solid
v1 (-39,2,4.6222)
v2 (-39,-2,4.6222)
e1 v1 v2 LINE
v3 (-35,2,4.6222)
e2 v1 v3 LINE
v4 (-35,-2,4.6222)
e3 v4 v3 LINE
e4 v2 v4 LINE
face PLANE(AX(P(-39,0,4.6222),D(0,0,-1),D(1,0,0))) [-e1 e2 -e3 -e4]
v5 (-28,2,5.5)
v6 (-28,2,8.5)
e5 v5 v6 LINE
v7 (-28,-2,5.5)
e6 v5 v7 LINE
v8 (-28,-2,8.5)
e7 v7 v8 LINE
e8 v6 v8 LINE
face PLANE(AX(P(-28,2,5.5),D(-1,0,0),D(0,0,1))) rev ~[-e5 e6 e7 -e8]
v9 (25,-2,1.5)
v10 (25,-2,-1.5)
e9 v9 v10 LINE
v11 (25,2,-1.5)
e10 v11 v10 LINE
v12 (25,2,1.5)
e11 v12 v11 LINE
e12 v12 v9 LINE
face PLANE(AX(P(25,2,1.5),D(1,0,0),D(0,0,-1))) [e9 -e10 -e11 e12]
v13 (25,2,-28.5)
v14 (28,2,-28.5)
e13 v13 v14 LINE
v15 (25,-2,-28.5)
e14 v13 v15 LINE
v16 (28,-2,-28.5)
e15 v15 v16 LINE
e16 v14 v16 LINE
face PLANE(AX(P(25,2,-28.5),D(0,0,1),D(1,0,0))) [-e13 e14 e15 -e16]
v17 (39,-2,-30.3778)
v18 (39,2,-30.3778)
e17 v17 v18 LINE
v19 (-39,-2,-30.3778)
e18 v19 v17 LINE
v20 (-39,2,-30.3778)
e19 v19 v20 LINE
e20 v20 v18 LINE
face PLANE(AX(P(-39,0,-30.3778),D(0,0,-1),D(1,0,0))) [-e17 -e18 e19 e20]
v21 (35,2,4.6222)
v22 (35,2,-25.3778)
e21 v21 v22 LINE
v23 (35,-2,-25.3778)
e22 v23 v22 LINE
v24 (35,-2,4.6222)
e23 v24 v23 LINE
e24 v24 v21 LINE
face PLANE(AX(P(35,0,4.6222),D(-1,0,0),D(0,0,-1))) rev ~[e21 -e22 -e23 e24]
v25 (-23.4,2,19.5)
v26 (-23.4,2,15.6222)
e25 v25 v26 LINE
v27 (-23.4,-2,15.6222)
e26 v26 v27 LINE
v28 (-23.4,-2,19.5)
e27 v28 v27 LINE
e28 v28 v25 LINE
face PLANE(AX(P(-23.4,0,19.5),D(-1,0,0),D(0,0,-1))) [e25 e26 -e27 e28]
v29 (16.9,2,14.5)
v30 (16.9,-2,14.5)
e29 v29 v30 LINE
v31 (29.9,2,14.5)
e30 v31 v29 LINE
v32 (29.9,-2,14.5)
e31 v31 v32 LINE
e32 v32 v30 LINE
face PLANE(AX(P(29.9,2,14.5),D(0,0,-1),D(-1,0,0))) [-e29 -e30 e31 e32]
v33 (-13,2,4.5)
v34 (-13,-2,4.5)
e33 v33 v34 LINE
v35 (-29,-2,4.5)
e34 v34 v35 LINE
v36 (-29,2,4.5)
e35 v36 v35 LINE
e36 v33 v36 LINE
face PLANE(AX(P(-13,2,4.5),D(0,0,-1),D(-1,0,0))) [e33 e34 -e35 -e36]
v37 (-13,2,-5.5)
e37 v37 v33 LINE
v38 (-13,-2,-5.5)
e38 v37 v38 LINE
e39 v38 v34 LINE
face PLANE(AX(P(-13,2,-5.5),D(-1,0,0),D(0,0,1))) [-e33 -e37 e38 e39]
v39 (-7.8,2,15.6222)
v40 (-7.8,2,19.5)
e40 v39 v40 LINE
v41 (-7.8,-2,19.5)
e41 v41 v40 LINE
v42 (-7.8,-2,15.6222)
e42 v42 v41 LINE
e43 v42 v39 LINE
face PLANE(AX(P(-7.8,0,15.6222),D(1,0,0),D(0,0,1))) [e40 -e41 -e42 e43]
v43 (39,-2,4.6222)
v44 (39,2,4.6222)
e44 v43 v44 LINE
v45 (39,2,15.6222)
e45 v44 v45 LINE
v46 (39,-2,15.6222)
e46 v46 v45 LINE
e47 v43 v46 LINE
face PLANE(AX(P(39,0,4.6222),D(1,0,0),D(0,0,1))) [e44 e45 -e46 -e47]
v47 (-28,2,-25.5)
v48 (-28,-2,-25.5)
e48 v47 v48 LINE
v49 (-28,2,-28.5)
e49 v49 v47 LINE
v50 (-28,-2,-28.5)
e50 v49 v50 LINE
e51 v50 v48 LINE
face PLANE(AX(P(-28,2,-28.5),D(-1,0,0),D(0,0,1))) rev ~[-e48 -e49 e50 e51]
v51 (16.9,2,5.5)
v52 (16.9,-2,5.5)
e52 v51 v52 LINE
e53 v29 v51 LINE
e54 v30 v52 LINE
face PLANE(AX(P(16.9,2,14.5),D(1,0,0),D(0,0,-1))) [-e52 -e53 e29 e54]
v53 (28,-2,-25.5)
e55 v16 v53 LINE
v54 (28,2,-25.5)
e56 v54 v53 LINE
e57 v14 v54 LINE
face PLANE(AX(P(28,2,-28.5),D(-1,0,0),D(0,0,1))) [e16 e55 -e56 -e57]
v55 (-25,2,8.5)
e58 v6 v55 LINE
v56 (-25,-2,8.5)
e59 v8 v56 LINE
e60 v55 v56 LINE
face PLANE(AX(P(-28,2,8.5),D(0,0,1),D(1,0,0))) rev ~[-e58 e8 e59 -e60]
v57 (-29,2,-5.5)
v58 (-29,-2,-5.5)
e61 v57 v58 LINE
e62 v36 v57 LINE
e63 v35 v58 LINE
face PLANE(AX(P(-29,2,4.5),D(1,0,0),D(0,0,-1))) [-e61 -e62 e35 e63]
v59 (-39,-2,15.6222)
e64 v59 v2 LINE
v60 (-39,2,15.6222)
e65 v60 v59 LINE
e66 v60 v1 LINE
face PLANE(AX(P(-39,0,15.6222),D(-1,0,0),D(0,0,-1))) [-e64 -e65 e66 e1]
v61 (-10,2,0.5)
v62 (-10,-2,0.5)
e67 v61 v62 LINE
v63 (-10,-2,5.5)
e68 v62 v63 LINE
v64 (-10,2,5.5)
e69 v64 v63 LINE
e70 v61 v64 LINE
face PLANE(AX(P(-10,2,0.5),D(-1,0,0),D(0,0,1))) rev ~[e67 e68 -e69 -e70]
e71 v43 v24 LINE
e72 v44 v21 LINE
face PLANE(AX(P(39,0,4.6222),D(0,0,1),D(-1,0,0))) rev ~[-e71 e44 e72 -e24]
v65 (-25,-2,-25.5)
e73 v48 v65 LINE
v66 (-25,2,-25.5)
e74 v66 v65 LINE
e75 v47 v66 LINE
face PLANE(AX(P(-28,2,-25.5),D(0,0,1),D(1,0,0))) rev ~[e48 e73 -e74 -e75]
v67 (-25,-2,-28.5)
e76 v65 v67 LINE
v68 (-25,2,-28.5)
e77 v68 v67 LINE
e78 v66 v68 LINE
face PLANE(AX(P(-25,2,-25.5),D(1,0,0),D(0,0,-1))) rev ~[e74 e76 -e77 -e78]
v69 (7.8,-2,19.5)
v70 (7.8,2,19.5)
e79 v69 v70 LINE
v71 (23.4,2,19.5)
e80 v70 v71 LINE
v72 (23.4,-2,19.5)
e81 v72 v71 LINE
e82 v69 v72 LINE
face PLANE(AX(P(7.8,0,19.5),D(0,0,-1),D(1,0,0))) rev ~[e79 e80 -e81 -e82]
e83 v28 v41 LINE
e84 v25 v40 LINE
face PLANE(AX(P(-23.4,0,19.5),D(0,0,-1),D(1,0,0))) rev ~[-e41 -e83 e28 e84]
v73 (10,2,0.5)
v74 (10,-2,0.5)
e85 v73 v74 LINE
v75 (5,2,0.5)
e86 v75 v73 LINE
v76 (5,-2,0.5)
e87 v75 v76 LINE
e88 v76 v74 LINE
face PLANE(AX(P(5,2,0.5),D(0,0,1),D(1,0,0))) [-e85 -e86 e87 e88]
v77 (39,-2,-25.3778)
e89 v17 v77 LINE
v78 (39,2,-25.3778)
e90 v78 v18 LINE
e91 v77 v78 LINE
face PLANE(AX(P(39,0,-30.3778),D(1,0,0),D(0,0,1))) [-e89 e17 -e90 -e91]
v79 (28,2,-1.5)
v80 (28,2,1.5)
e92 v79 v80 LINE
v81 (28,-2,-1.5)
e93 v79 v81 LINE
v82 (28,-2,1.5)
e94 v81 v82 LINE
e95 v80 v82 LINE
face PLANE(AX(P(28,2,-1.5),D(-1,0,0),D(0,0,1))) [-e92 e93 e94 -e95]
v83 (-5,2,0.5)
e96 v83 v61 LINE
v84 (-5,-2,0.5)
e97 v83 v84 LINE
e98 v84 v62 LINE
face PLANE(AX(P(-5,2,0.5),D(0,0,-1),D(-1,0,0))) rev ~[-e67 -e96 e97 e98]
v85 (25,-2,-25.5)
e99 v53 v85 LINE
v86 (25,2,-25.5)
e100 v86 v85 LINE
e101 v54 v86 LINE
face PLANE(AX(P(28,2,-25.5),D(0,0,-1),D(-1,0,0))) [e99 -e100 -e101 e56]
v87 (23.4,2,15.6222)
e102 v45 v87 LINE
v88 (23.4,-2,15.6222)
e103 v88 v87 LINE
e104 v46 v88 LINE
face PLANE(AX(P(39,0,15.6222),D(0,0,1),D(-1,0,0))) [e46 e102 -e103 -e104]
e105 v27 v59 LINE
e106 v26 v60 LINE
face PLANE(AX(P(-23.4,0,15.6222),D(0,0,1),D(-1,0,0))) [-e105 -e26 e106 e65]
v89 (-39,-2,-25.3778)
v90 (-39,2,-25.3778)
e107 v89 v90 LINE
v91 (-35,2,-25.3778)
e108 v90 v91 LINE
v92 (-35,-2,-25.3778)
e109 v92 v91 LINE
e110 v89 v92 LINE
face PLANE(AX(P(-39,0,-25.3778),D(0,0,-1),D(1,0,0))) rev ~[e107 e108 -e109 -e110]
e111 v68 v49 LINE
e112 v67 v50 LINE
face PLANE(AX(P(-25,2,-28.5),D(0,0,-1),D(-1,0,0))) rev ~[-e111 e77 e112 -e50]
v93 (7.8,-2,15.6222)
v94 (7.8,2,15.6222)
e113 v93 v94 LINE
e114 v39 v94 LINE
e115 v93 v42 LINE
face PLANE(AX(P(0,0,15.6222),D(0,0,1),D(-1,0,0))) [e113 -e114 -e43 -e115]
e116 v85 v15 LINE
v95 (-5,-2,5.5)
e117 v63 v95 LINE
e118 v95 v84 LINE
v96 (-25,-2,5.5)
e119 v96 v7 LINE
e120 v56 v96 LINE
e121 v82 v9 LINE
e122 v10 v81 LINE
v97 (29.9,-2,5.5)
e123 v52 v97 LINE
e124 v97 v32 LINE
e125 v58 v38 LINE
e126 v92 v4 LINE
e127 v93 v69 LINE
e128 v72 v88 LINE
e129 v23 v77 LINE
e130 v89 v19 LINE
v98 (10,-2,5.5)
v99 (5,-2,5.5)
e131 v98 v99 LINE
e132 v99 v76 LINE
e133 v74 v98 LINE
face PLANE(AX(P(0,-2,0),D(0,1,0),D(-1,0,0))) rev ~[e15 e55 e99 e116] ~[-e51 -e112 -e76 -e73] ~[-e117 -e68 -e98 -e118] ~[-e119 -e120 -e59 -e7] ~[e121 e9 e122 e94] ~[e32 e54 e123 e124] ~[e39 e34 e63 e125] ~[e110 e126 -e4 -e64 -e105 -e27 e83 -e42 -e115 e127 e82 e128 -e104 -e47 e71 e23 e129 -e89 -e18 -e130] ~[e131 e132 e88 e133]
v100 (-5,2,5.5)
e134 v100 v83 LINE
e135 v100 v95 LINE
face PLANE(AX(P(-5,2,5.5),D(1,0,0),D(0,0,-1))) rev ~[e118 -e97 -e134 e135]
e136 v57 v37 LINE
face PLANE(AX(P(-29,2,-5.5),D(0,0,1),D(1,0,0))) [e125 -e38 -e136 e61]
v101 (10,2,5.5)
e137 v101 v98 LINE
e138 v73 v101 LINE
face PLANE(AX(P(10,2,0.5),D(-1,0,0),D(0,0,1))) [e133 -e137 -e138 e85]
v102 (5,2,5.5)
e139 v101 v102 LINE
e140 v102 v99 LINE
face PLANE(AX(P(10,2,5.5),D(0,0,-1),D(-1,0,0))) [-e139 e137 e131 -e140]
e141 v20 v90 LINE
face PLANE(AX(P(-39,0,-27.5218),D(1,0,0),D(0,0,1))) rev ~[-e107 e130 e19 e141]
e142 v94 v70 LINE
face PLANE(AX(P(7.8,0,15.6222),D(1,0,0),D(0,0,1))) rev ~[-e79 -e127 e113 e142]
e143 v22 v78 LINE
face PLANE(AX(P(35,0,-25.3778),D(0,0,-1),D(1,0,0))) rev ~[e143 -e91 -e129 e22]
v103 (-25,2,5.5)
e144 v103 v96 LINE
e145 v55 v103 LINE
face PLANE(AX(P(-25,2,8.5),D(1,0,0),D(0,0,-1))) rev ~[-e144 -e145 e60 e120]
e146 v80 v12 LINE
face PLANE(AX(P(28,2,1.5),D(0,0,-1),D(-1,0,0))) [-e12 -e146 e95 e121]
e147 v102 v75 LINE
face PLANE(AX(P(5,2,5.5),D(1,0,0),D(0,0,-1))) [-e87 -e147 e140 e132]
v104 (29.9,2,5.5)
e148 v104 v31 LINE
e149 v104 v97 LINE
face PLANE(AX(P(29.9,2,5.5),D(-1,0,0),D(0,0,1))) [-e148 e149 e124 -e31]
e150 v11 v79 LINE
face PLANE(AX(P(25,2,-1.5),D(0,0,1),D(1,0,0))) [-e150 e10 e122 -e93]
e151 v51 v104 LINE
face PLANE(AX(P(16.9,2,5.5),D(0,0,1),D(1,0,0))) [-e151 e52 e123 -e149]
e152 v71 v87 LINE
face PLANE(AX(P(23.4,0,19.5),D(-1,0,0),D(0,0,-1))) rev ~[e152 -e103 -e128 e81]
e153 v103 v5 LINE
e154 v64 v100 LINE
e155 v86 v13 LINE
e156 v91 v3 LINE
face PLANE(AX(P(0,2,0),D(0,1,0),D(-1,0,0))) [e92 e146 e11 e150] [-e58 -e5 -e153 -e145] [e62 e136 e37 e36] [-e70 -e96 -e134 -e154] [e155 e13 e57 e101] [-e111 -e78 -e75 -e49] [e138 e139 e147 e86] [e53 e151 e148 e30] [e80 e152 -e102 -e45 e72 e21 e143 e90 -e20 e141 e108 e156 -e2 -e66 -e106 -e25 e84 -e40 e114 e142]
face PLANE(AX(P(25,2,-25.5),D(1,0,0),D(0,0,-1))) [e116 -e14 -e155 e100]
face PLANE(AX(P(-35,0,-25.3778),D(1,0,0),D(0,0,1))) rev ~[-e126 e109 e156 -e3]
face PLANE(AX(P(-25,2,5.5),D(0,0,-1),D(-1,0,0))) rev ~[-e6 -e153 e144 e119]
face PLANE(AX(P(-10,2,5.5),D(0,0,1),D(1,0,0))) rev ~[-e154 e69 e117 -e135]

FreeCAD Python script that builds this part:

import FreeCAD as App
import Part
import Sketcher

V = App.Vector

doc = App.newDocument("Part")
body = doc.addObject("PartDesign::Body", "Body")

# Sketch on XZ plane
sketch1 = body.newObject("Sketcher::SketchObject", "Sketch")
sketch1.AttachmentSupport = (doc.getObject("XZ_Plane"), [""])
sketch1.MapMode = "FlatFace"
sketch1.addGeometry([
    Part.LineSegment(V(-23.4, 15.6, 0), V(-23.4, 19.5, 0)),  # 0
    Part.LineSegment(V(-23.4, 19.5, 0), V(-7.8, 19.5, 0)),  # 1
    Part.LineSegment(V(-7.8, 19.5, 0), V(-7.8, 15.6, 0)),  # 2
    Part.LineSegment(V(-7.8, 15.6, 0), V(7.8, 15.6, 0)),  # 3
    Part.LineSegment(V(7.8, 15.6, 0), V(7.8, 19.5, 0)),  # 4
    Part.LineSegment(V(7.8, 19.5, 0), V(23.4, 19.5, 0)),  # 5
    Part.LineSegment(V(23.4, 19.5, 0), V(23.4, 15.6, 0)),  # 6
    Part.LineSegment(V(23.4, 15.6, 0), V(39, 15.6, 0)),  # 7
    Part.LineSegment(V(39, 15.6, 0), V(39, 4.6, 0)),  # 8
    Part.LineSegment(V(39, 4.6, 0), V(35, 4.6, 0)),  # 9
    Part.LineSegment(V(35, 4.6, 0), V(35, -25.4, 0)),  # 10
    Part.LineSegment(V(35, -25.4, 0), V(39, -25.4, 0)),  # 11
    Part.LineSegment(V(39, -25.4, 0), V(39, -30.4, 0)),  # 12
    Part.LineSegment(V(39, -30.4, 0), V(-39, -30.4, 0)),  # 13
    Part.LineSegment(V(-39, -30.4, 0), V(-39, -25.4, 0)),  # 14
    Part.LineSegment(V(-39, -25.4, 0), V(-35, -25.4, 0)),  # 15
    Part.LineSegment(V(-35, -25.4, 0), V(-35, 4.6, 0)),  # 16
    Part.LineSegment(V(-35, 4.6, 0), V(-39, 4.6, 0)),  # 17
    Part.LineSegment(V(-39, 4.6, 0), V(-39, 15.6, 0)),  # 18
    Part.LineSegment(V(-39, 15.6, 0), V(-23.4, 15.6, 0)),  # 19
], False)
sketch1.addConstraint([
    Sketcher.Constraint("Coincident", 0, 2, 1, 1),
    Sketcher.Constraint("Coincident", 1, 2, 2, 1),
    Sketcher.Constraint("Coincident", 2, 2, 3, 1),
    Sketcher.Constraint("Coincident", 3, 2, 4, 1),
    Sketcher.Constraint("Coincident", 4, 2, 5, 1),
    Sketcher.Constraint("Coincident", 5, 2, 6, 1),
    Sketcher.Constraint("Coincident", 6, 2, 7, 1),
    Sketcher.Constraint("Coincident", 7, 2, 8, 1),
    Sketcher.Constraint("Coincident", 8, 2, 9, 1),
    Sketcher.Constraint("Coincident", 9, 2, 10, 1),
    Sketcher.Constraint("Coincident", 10, 2, 11, 1),
    Sketcher.Constraint("Coincident", 11, 2, 12, 1),
    Sketcher.Constraint("Coincident", 12, 2, 13, 1),
    Sketcher.Constraint("Coincident", 13, 2, 14, 1),
    Sketcher.Constraint("Coincident", 14, 2, 15, 1),
    Sketcher.Constraint("Coincident", 15, 2, 16, 1),
    Sketcher.Constraint("Coincident", 16, 2, 17, 1),
    Sketcher.Constraint("Coincident", 17, 2, 18, 1),
    Sketcher.Constraint("Coincident", 18, 2, 19, 1),
    Sketcher.Constraint("Coincident", 19, 2, 0, 1),
    Sketcher.Constraint("Vertical", 0),
    Sketcher.Constraint("Horizontal", 1),
    Sketcher.Constraint("Vertical", 2),
    Sketcher.Constraint("Horizontal", 3),
    Sketcher.Constraint("Vertical", 4),
    Sketcher.Constraint("Horizontal", 5),
    Sketcher.Constraint("Vertical", 6),
    Sketcher.Constraint("Horizontal", 7),
    Sketcher.Constraint("Vertical", 8),
    Sketcher.Constraint("Horizontal", 9),
    Sketcher.Constraint("Vertical", 10),
    Sketcher.Constraint("Horizontal", 11),
    Sketcher.Constraint("Vertical", 12),
    Sketcher.Constraint("Horizontal", 13),
    Sketcher.Constraint("Vertical", 14),
    Sketcher.Constraint("Horizontal", 15),
    Sketcher.Constraint("Vertical", 16),
    Sketcher.Constraint("Horizontal", 17),
    Sketcher.Constraint("Vertical", 18),
    Sketcher.Constraint("Horizontal", 19),
    Sketcher.Constraint("Symmetric", 1, 2, 4, 2, -2),
    Sketcher.Constraint("Symmetric", 11, 2, 14, 2, -2),
    Sketcher.Constraint("Symmetric", 9, 2, 16, 2, -2),
    Sketcher.Constraint("Symmetric", 7, 2, 18, 2, -2),
    Sketcher.Constraint("Horizontal", 3, 2, 6, 2),
    Sketcher.Constraint("Vertical", 8, 2, 11, 2),
    Sketcher.Constraint("Equal", 1, 3),
    Sketcher.Constraint("Equal", 3, 5),
    Sketcher.Constraint("Equal", 5, 7),
    Sketcher.Constraint("DistanceX", 9, 2, 9, 1, 4.0),
    Sketcher.Constraint("DistanceX", 13, 2, 13, 1, 78.0),
    Sketcher.Constraint("DistanceY", 8, 2, 8, 1, 11.0),
    Sketcher.Constraint("DistanceY", 10, 2, 10, 1, 30.0),
    Sketcher.Constraint("DistanceY", 12, 2, 12, 1, 5.0),
    Sketcher.Constraint("DistanceY", -1, 1, 0, 2, 19.5),
    Sketcher.Constraint("DistanceY", 0, 1, 0, 2, 3.8778),
])
pad1 = body.newObject("PartDesign::Pad", "Pad")
pad1.Profile = sketch1
pad1.Length = 4
pad1.Midplane = True

# Sketch on XZ plane
sketch2 = body.newObject("Sketcher::SketchObject", "Sketch001")
sketch2.AttachmentSupport = (doc.getObject("XZ_Plane"), [""])
sketch2.MapMode = "FlatFace"
sketch2.AttachmentOffset = App.Placement(V(0, 0, -2), App.Rotation())
sketch2.addGeometry([
    Part.LineSegment(V(5, 5.5, 0), V(10, 5.5, 0)),  # 0
    Part.LineSegment(V(10, 5.5, 0), V(10, 0.5, 0)),  # 1
    Part.LineSegment(V(10, 0.5, 0), V(5, 0.5, 0)),  # 2
    Part.LineSegment(V(5, 0.5, 0), V(5, 5.5, 0)),  # 3
    Part.LineSegment(V(-10, 0.5, 0), V(-10, 5.5, 0)),  # 4
    Part.LineSegment(V(-10, 5.5, 0), V(-5, 5.5, 0)),  # 5
    Part.LineSegment(V(-5, 5.5, 0), V(-5, 0.5, 0)),  # 6
    Part.LineSegment(V(-5, 0.5, 0), V(-10, 0.5, 0)),  # 7
    Part.LineSegment(V(-29, 4.5, 0), V(-13, 4.5, 0)),  # 8
    Part.LineSegment(V(-13, 4.5, 0), V(-13, -5.5, 0)),  # 9
    Part.LineSegment(V(-13, -5.5, 0), V(-29, -5.5, 0)),  # 10
    Part.LineSegment(V(-29, -5.5, 0), V(-29, 4.5, 0)),  # 11
    Part.LineSegment(V(-28, 8.5, 0), V(-25, 8.5, 0)),  # 12
    Part.LineSegment(V(-25, 8.5, 0), V(-25, 5.5, 0)),  # 13
    Part.LineSegment(V(-25, 5.5, 0), V(-28, 5.5, 0)),  # 14
    Part.LineSegment(V(-28, 5.5, 0), V(-28, 8.5, 0)),  # 15
    Part.LineSegment(V(25, -25.5, 0), V(28, -25.5, 0)),  # 16
    Part.LineSegment(V(28, -25.5, 0), V(28, -28.5, 0)),  # 17
    Part.LineSegment(V(28, -28.5, 0), V(25, -28.5, 0)),  # 18
    Part.LineSegment(V(25, -28.5, 0), V(25, -25.5, 0)),  # 19
    Part.LineSegment(V(-28, -28.5, 0), V(-28, -25.5, 0)),  # 20
    Part.LineSegment(V(-28, -25.5, 0), V(-25, -25.5, 0)),  # 21
    Part.LineSegment(V(-25, -25.5, 0), V(-25, -28.5, 0)),  # 22
    Part.LineSegment(V(-25, -28.5, 0), V(-28, -28.5, 0)),  # 23
    Part.LineSegment(V(16.9, 14.5, 0), V(29.9, 14.5, 0)),  # 24
    Part.LineSegment(V(29.9, 14.5, 0), V(29.9, 5.5, 0)),  # 25
    Part.LineSegment(V(29.9, 5.5, 0), V(16.9, 5.5, 0)),  # 26
    Part.LineSegment(V(16.9, 5.5, 0), V(16.9, 14.5, 0)),  # 27
    Part.LineSegment(V(25, 1.5, 0), V(28, 1.5, 0)),  # 28
    Part.LineSegment(V(28, 1.5, 0), V(28, -1.5, 0)),  # 29
    Part.LineSegment(V(28, -1.5, 0), V(25, -1.5, 0)),  # 30
    Part.LineSegment(V(25, -1.5, 0), V(25, 1.5, 0)),  # 31
], False)
sketch2.addConstraint([
    Sketcher.Constraint("Coincident", 0, 2, 1, 1),
    Sketcher.Constraint("Coincident", 1, 2, 2, 1),
    Sketcher.Constraint("Coincident", 2, 2, 3, 1),
    Sketcher.Constraint("Coincident", 3, 2, 0, 1),
    Sketcher.Constraint("Coincident", 4, 2, 5, 1),
    Sketcher.Constraint("Coincident", 5, 2, 6, 1),
    Sketcher.Constraint("Coincident", 6, 2, 7, 1),
    Sketcher.Constraint("Coincident", 7, 2, 4, 1),
    Sketcher.Constraint("Coincident", 8, 2, 9, 1),
    Sketcher.Constraint("Coincident", 9, 2, 10, 1),
    Sketcher.Constraint("Coincident", 10, 2, 11, 1),
    Sketcher.Constraint("Coincident", 11, 2, 8, 1),
    Sketcher.Constraint("Coincident", 12, 2, 13, 1),
    Sketcher.Constraint("Coincident", 13, 2, 14, 1),
    Sketcher.Constraint("Coincident", 14, 2, 15, 1),
    Sketcher.Constraint("Coincident", 15, 2, 12, 1),
    Sketcher.Constraint("Coincident", 16, 2, 17, 1),
    Sketcher.Constraint("Coincident", 17, 2, 18, 1),
    Sketcher.Constraint("Coincident", 18, 2, 19, 1),
    Sketcher.Constraint("Coincident", 19, 2, 16, 1),
    Sketcher.Constraint("Coincident", 20, 2, 21, 1),
    Sketcher.Constraint("Coincident", 21, 2, 22, 1),
    Sketcher.Constraint("Coincident", 22, 2, 23, 1),
    Sketcher.Constraint("Coincident", 23, 2, 20, 1),
    Sketcher.Constraint("Coincident", 24, 2, 25, 1),
    Sketcher.Constraint("Coincident", 25, 2, 26, 1),
    Sketcher.Constraint("Coincident", 26, 2, 27, 1),
    Sketcher.Constraint("Coincident", 27, 2, 24, 1),
    Sketcher.Constraint("Coincident", 28, 2, 29, 1),
    Sketcher.Constraint("Coincident", 29, 2, 30, 1),
    Sketcher.Constraint("Coincident", 30, 2, 31, 1),
    Sketcher.Constraint("Coincident", 31, 2, 28, 1),
    Sketcher.Constraint("Horizontal", 0),
    Sketcher.Constraint("Vertical", 1),
    Sketcher.Constraint("Horizontal", 2),
    Sketcher.Constraint("Vertical", 3),
    Sketcher.Constraint("Vertical", 4),
    Sketcher.Constraint("Horizontal", 5),
    Sketcher.Constraint("Vertical", 6),
    Sketcher.Constraint("Horizontal", 7),
    Sketcher.Constraint("Horizontal", 8),
    Sketcher.Constraint("Vertical", 9),
    Sketcher.Constraint("Horizontal", 10),
    Sketcher.Constraint("Vertical", 11),
    Sketcher.Constraint("Horizontal", 12),
    Sketcher.Constraint("Vertical", 13),
    Sketcher.Constraint("Horizontal", 14),
    Sketcher.Constraint("Vertical", 15),
    Sketcher.Constraint("Horizontal", 16),
    Sketcher.Constraint("Vertical", 17),
    Sketcher.Constraint("Horizontal", 18),
    Sketcher.Constraint("Vertical", 19),
    Sketcher.Constraint("Vertical", 20),
    Sketcher.Constraint("Horizontal", 21),
    Sketcher.Constraint("Vertical", 22),
    Sketcher.Constraint("Horizontal", 23),
    Sketcher.Constraint("Horizontal", 24),
    Sketcher.Constraint("Vertical", 25),
    Sketcher.Constraint("Horizontal", 26),
    Sketcher.Constraint("Vertical", 27),
    Sketcher.Constraint("Horizontal", 28),
    Sketcher.Constraint("Vertical", 29),
    Sketcher.Constraint("Horizontal", 30),
    Sketcher.Constraint("Vertical", 31),
    Sketcher.Constraint("Symmetric", 0, 2, 4, 2, -2),
    Sketcher.Constraint("Symmetric", 2, 2, 6, 2, -2),
    Sketcher.Constraint("Symmetric", 16, 2, 20, 2, -2),
    Sketcher.Constraint("Symmetric", 18, 2, 22, 2, -2),
    Sketcher.Constraint("Horizontal", 5, 2, 13, 2),
    Sketcher.Constraint("Horizontal", 14, 2, 25, 2),
    Sketcher.Constraint("Vertical", 15, 2, 20, 2),
    Sketcher.Constraint("Vertical", 13, 2, 21, 2),
    Sketcher.Constraint("Vertical", 17, 2, 28, 2),
    Sketcher.Constraint("Vertical", 19, 2, 30, 2),
    Sketcher.Constraint("Equal", 7, 1),
    Sketcher.Constraint("Equal", 30, 13),
    Sketcher.Constraint("Equal", 15, 17),
    Sketcher.Constraint("Equal", 22, 29),
    Sketcher.Constraint("DistanceX", 0, 1, 0, 2, 5.0),
    Sketcher.Constraint("DistanceX", 8, 1, 8, 2, 16.0),
    Sketcher.Constraint("DistanceX", 12, 1, 12, 2, 3.0),
    Sketcher.Constraint("DistanceX", 24, 1, 24, 2, 13.0),
    Sketcher.Constraint("DistanceY", 9, 2, 9, 1, 10.0),
    Sketcher.Constraint("DistanceY", 25, 2, 25, 1, 9.0),
    Sketcher.Constraint("DistanceX", -1, 1, 0, 2, 10.0),
    Sketcher.Constraint("DistanceX", 8, 2, -1, 1, 13.0),
    Sketcher.Constraint("DistanceY", 9, 2, 7, 2, 6.0),
    Sketcher.Constraint("DistanceX", 12, 2, 4, 2, 15.0),
    Sketcher.Constraint("DistanceY", 20, 2, 10, 2, 20.0),
    Sketcher.Constraint("DistanceY", 28, 2, 24, 2, 13.0),
    Sketcher.Constraint("DistanceY", -1, 1, 0, 2, 5.5),
    Sketcher.Constraint("DistanceX", -1, 1, 24, 2, 29.9),
])
pocket1 = body.newObject("PartDesign::Pocket", "Pocket")
pocket1.Profile = sketch2
pocket1.Length = 4
pocket1.Reversed = True

doc.recompute()
